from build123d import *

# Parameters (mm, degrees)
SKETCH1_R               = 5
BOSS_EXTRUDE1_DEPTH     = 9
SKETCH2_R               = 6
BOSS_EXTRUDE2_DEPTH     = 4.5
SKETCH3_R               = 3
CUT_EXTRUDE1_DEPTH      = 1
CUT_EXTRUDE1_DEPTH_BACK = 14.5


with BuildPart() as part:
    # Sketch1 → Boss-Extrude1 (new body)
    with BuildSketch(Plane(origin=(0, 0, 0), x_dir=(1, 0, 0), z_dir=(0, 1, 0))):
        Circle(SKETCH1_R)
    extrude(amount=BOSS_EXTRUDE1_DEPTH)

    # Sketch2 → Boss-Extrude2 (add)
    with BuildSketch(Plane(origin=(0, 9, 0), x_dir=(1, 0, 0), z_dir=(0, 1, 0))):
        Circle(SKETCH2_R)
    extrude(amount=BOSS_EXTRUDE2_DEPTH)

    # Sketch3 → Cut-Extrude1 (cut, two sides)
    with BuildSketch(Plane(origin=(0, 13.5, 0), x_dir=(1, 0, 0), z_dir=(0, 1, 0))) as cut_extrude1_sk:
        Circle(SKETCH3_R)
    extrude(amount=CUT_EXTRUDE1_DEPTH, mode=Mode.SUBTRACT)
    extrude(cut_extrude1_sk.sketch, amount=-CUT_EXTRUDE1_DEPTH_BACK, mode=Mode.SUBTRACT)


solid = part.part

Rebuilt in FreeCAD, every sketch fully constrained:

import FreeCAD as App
import Part
import Sketcher

V = App.Vector

doc = App.newDocument("Part")
body = doc.addObject("PartDesign::Body", "Body")

# Sketch on XZ plane
sketch1 = body.newObject("Sketcher::SketchObject", "Sketch")
sketch1.AttachmentSupport = (doc.getObject("XZ_Plane"), [""])
sketch1.MapMode = "FlatFace"
sketch1.addGeometry(Part.Circle(V(0, 0, 0), V(0, 0, 1), 5), False)
sketch1.addConstraint(Sketcher.Constraint("Coincident", 0, 3, -1, 1))
sketch1.addConstraint(Sketcher.Constraint("Diameter", 0, 10.0))
pad1 = body.newObject("PartDesign::Pad", "Pad")
pad1.Profile = sketch1
pad1.Length = 9
pad1.Reversed = True

# Sketch on XZ plane
sketch2 = body.newObject("Sketcher::SketchObject", "Sketch001")
sketch2.AttachmentSupport = (doc.getObject("XZ_Plane"), [""])
sketch2.MapMode = "FlatFace"
sketch2.AttachmentOffset = App.Placement(V(0, 0, -9), App.Rotation())
sketch2.addGeometry(Part.Circle(V(0, 0, 0), V(0, 0, 1), 6), False)
sketch2.addConstraint(Sketcher.Constraint("Coincident", 0, 3, -1, 1))
sketch2.addConstraint(Sketcher.Constraint("Diameter", 0, 12.0))
pad2 = body.newObject("PartDesign::Pad", "Pad001")
pad2.Profile = sketch2
pad2.Length = 4.5
pad2.Reversed = True

# Sketch on XZ plane
sketch3 = body.newObject("Sketcher::SketchObject", "Sketch002")
sketch3.AttachmentSupport = (doc.getObject("XZ_Plane"), [""])
sketch3.MapMode = "FlatFace"
sketch3.AttachmentOffset = App.Placement(V(0, 0, -13.5), App.Rotation())
sketch3.addGeometry(Part.Circle(V(0, 0, 0), V(0, 0, 1), 3), False)
sketch3.addConstraint(Sketcher.Constraint("Coincident", 0, 3, -1, 1))
sketch3.addConstraint(Sketcher.Constraint("Diameter", 0, 6.0))
pocket1 = body.newObject("PartDesign::Pocket", "Pocket")
pocket1.Profile = sketch3
pocket1.Type = "ThroughAll"
pocket1.Midplane = True

doc.recompute()
